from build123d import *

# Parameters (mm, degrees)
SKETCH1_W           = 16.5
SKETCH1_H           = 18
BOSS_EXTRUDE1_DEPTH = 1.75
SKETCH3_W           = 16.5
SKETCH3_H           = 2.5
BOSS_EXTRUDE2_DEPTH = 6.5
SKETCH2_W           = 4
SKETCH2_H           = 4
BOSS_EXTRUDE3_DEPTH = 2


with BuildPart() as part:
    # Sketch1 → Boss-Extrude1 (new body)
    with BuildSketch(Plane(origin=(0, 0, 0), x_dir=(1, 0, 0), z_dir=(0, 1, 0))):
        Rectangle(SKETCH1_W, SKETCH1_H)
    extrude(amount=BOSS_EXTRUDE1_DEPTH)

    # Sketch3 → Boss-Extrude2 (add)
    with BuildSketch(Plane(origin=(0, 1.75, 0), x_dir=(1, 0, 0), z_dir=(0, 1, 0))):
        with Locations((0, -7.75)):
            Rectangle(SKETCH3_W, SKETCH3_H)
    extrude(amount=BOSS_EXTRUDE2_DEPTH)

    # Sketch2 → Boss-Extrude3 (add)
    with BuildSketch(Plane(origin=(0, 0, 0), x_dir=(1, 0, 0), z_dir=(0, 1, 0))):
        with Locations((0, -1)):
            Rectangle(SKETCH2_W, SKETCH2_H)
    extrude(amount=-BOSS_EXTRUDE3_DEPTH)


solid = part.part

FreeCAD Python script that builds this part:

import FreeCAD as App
import Part
import Sketcher
from FreeCAD import Vector


def add_polygon(sketch, points):
    """Adds a closed chain of lines whose ends are joined by coincident constraints."""
    first, n = sketch.GeometryCount, len(points)
    for a, b in zip(points, points[1:] + points[:1]):
        sketch.addGeometry(Part.LineSegment(App.Vector(*a, 0), App.Vector(*b, 0)), False)
    for i in range(n):
        sketch.addConstraint(Sketcher.Constraint("Coincident", first + i, 2, first + (i + 1) % n, 1))

doc = App.newDocument("Part")
body = doc.addObject("PartDesign::Body", "Body")

# Sketch on XZ plane
sketch1 = body.newObject("Sketcher::SketchObject", "Sketch")
sketch1.AttachmentSupport = (doc.getObject("XZ_Plane"), [""])
sketch1.MapMode = "FlatFace"
add_polygon(sketch1, [(-8.25, -9), (-8.25, 9), (8.25, 9), (8.25, -9)])  # lines 0-3
sketch1.addConstraint([
    Sketcher.Constraint("Vertical", 0),
    Sketcher.Constraint("Horizontal", 1),
    Sketcher.Constraint("Vertical", 2),
    Sketcher.Constraint("Horizontal", 3),
    Sketcher.Constraint("Symmetric", 0, 2, 2, 2, -1, 1),
    Sketcher.Constraint("DistanceY", 0, 1, 0, 2, 18.0),
    Sketcher.Constraint("DistanceX", 1, 1, 1, 2, 16.5),
])
pad1 = body.newObject("PartDesign::Pad", "Pad")
pad1.Profile = sketch1
pad1.Length = 1.75
pad1.Reversed = True

# Sketch on XZ plane
sketch2 = body.newObject("Sketcher::SketchObject", "Sketch001")
sketch2.AttachmentSupport = (doc.getObject("XZ_Plane"), [""])
sketch2.MapMode = "FlatFace"
sketch2.AttachmentOffset = App.Placement(Vector(0, 0, -1.75), App.Rotation())
add_polygon(sketch2, [(-8.25, 6.5), (-8.25, 9), (8.25, 9), (8.25, 6.5)])  # lines 0-3
sketch2.addConstraint([
    Sketcher.Constraint("Vertical", 0),
    Sketcher.Constraint("Horizontal", 1),
    Sketcher.Constraint("Vertical", 2),
    Sketcher.Constraint("Horizontal", 3),
    Sketcher.Constraint("DistanceX", 1, 1, 1, 2, 16.5),
    Sketcher.Constraint("DistanceY", 0, 1, 0, 2, 2.5),
    Sketcher.Constraint("DistanceY", -1, 1, 0, 2, 9.0),
    Sketcher.Constraint("DistanceX", 0, 2, -1, 1, 8.25),
])
pad2 = body.newObject("PartDesign::Pad", "Pad001")
pad2.Profile = sketch2
pad2.Length = 6.5
pad2.Reversed = True

# Sketch on XZ plane
sketch3 = body.newObject("Sketcher::SketchObject", "Sketch002")
sketch3.AttachmentSupport = (doc.getObject("XZ_Plane"), [""])
sketch3.MapMode = "FlatFace"
add_polygon(sketch3, [(-2, -1), (-2, 3), (2, 3), (2, -1)])  # lines 0-3
sketch3.addConstraint([
    Sketcher.Constraint("Vertical", 0),
    Sketcher.Constraint("Horizontal", 1),
    Sketcher.Constraint("Vertical", 2),
    Sketcher.Constraint("Horizontal", 3),
    Sketcher.Constraint("Equal", 3, 0),
    Sketcher.Constraint("DistanceX", 1, 1, 1, 2, 4.0),
    Sketcher.Constraint("DistanceX", 0, 2, -1, 1, 2.0),
    Sketcher.Constraint("DistanceY", -1, 1, 0, 2, 3.0),
])
pad3 = body.newObject("PartDesign::Pad", "Pad002")
pad3.Profile = sketch3
pad3.Length = 2

doc.recompute()
